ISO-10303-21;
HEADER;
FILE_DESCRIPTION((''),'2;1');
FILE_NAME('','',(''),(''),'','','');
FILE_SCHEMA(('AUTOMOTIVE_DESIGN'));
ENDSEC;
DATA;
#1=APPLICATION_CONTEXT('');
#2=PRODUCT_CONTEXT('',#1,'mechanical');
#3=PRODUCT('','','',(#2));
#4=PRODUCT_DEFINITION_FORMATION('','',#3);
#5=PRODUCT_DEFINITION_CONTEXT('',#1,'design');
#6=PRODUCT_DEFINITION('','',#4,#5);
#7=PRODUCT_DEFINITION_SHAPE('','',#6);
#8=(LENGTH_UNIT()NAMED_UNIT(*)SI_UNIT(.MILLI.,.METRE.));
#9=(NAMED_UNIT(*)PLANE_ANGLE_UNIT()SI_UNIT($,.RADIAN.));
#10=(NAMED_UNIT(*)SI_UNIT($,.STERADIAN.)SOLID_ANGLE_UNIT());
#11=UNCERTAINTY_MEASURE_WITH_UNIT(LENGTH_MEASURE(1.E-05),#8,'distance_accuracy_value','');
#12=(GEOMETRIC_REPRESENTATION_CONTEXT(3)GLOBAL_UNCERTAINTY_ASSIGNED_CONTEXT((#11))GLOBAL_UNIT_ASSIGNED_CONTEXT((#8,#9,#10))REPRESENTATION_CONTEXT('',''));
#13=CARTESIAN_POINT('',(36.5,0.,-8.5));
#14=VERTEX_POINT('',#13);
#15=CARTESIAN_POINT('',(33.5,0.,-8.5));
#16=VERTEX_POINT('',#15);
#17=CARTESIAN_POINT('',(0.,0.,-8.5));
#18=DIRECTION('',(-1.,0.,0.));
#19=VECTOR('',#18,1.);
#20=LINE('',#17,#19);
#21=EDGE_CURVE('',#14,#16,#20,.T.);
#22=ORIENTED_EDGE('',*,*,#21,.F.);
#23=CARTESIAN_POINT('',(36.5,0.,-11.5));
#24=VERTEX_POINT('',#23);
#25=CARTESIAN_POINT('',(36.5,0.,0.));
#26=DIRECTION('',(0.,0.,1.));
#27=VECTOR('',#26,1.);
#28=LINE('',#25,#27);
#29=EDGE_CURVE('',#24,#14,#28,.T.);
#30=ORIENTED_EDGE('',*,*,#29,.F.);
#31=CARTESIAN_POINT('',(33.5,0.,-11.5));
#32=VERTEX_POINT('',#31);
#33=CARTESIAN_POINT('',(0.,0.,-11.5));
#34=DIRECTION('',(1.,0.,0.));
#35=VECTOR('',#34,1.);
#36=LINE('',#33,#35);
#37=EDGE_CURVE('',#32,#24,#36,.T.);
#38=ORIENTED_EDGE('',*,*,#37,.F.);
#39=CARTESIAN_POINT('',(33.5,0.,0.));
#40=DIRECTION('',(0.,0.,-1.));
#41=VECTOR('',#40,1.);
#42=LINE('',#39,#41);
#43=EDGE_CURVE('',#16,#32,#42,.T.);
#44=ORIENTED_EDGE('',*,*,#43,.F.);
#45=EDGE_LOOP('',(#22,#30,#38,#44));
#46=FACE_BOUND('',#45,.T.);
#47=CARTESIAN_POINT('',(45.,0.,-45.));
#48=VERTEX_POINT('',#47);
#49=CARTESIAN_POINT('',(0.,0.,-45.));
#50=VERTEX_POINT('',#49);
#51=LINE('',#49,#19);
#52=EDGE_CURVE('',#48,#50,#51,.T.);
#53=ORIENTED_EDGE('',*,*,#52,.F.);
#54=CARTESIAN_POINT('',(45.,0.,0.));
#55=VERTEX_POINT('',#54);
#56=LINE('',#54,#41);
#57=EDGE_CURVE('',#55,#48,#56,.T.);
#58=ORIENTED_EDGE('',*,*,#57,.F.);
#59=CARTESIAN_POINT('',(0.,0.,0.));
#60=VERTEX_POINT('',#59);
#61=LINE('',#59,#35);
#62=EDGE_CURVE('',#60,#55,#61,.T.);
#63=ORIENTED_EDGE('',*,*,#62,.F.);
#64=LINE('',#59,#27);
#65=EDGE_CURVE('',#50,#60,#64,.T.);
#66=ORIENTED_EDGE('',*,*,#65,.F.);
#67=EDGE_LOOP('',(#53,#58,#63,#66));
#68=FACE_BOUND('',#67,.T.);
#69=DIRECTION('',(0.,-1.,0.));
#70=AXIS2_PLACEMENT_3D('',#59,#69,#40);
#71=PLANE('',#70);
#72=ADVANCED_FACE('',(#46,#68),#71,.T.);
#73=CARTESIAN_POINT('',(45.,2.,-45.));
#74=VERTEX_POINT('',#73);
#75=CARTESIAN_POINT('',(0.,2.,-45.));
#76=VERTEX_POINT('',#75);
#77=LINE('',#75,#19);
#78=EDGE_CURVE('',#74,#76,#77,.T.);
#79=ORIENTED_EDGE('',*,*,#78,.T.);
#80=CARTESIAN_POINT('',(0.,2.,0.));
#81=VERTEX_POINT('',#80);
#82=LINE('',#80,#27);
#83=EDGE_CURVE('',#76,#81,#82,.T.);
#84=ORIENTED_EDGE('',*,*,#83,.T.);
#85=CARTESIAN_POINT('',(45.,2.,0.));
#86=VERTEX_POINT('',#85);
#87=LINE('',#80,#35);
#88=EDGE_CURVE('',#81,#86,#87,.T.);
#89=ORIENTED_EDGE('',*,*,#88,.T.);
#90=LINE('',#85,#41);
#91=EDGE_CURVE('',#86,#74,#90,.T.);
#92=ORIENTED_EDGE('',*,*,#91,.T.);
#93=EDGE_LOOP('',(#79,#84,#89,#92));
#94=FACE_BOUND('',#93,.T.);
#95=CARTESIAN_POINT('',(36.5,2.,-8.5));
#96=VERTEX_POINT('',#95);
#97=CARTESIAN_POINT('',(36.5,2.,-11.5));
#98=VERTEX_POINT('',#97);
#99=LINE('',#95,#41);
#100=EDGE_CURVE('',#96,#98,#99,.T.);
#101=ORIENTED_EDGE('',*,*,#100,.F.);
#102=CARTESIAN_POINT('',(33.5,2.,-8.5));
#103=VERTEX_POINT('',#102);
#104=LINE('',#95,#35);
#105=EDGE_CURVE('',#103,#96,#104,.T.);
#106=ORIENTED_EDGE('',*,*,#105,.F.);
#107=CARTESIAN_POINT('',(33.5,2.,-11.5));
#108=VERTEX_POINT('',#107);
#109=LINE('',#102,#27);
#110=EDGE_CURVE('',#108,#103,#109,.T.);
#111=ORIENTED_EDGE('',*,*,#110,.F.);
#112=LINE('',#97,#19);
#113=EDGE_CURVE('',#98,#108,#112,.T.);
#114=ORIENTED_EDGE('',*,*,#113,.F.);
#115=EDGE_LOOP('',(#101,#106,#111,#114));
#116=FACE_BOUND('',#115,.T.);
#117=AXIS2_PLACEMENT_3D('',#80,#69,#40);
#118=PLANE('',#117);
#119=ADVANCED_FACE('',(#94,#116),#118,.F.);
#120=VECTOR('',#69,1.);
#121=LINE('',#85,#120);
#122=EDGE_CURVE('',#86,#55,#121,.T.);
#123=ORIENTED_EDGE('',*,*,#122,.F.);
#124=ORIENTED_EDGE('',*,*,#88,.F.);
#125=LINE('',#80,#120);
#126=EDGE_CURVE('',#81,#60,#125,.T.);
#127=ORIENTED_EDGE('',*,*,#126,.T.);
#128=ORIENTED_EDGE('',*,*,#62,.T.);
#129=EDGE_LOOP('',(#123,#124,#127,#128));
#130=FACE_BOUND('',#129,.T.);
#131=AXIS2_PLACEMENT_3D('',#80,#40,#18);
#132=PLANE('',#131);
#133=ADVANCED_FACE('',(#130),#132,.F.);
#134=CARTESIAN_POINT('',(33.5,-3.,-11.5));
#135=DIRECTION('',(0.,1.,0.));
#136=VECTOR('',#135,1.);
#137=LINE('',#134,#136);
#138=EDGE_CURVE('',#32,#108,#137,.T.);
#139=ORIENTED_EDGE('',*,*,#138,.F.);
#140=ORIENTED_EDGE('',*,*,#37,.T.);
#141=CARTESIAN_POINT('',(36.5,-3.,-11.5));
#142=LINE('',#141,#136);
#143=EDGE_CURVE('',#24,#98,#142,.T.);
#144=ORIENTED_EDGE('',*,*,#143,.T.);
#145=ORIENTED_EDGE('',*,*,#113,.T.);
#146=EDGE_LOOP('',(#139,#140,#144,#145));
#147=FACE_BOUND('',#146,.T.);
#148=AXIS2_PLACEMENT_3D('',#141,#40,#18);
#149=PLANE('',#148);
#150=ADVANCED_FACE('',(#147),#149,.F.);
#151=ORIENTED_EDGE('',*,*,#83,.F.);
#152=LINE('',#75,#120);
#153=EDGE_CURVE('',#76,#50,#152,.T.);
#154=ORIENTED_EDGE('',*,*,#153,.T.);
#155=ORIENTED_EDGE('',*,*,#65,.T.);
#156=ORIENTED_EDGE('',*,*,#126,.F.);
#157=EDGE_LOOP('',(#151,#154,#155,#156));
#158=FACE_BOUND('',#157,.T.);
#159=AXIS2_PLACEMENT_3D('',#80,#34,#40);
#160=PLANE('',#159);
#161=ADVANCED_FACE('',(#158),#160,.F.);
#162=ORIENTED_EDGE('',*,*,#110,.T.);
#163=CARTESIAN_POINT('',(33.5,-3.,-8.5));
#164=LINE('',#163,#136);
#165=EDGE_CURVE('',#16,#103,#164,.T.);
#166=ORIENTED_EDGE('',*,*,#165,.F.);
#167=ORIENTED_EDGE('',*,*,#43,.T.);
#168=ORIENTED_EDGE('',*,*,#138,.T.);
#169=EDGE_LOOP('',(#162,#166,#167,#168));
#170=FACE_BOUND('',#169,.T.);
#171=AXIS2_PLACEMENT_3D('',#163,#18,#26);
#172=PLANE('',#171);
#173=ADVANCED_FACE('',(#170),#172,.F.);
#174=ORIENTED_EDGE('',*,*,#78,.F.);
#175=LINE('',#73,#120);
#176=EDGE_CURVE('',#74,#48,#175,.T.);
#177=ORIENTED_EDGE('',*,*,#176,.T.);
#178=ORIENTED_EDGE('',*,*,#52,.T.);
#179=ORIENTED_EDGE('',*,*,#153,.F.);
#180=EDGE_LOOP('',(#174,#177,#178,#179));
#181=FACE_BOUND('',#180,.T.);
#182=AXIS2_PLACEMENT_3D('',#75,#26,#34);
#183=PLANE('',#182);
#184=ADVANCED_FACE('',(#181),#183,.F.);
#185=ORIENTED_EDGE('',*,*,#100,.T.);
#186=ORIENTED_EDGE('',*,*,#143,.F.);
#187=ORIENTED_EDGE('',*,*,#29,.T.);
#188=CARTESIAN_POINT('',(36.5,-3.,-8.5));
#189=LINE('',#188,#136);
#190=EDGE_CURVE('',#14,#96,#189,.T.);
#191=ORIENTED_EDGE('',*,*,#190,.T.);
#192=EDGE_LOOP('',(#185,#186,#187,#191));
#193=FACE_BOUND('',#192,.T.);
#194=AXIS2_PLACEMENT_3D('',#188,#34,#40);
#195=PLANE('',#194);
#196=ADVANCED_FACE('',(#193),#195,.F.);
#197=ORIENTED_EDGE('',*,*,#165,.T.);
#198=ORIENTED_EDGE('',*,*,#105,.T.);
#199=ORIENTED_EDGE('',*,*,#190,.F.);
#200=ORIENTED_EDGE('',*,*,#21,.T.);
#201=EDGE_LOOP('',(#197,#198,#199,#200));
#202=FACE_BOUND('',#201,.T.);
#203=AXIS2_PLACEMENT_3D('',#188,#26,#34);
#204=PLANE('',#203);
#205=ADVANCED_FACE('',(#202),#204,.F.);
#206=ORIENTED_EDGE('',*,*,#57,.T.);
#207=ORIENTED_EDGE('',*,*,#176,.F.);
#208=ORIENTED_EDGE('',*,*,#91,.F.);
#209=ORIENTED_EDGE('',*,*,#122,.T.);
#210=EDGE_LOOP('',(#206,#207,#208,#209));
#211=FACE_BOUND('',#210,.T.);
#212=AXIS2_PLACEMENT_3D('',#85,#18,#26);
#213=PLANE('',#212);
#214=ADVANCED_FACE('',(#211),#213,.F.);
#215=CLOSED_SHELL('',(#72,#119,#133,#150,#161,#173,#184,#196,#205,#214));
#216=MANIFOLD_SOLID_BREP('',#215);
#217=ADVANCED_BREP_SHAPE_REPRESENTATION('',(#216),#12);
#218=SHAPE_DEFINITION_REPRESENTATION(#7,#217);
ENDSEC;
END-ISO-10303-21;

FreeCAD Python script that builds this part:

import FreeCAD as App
import Part
import Sketcher

V = App.Vector


def add_polygon(sketch, points):
    """Adds a closed chain of lines whose ends are joined by coincident constraints."""
    first, n = sketch.GeometryCount, len(points)
    for a, b in zip(points, points[1:] + points[:1]):
        sketch.addGeometry(Part.LineSegment(App.Vector(*a, 0), App.Vector(*b, 0)), False)
    for i in range(n):
        sketch.addConstraint(Sketcher.Constraint("Coincident", first + i, 2, first + (i + 1) % n, 1))

doc = App.newDocument("Part")
params = doc.addObject("Spreadsheet::Sheet", "Params")
for row, (alias, value) in enumerate([
    ("sketch1_width", "45 mm"),
    ("pad1_length", "2 mm"),
    ("sketch2_width", "3 mm"),
    ("pocket1_length", "5 mm"),
], start=1):
    params.set(f"A{row}", alias)
    params.set(f"B{row}", "=" + value)
    params.setAlias(f"B{row}", alias)

body = doc.addObject("PartDesign::Body", "Body")

sketch1 = body.newObject("Sketcher::SketchObject", "Sketch")
sketch1.AttachmentSupport = (doc.getObject("XZ_Plane"), [""])
sketch1.MapMode = "FlatFace"
add_polygon(sketch1, [(0, -45), (0, 0), (45, 0), (45, -45)])
sketch1.addConstraint([
    Sketcher.Constraint("Vertical", 0),
    Sketcher.Constraint("Horizontal", 1),
    Sketcher.Constraint("Vertical", 2),
    Sketcher.Constraint("Horizontal", 3),
    Sketcher.Constraint("Coincident", 0, 2, -1, 1),
    Sketcher.Constraint("Equal", 3, 0),
    Sketcher.Constraint("DistanceX", 1, 1, 1, 2, 45.0),
])
sketch1.setExpression("Constraints[10]", "Params.sketch1_width")
pad1 = body.newObject("PartDesign::Pad", "Pad")
pad1.Profile = sketch1
pad1.setExpression("Length", "Params.pad1_length")
pad1.Reversed = True

sketch2 = body.newObject("Sketcher::SketchObject", "Sketch001")
sketch2.AttachmentSupport = (doc.getObject("XZ_Plane"), [""])
sketch2.MapMode = "FlatFace"
sketch2.AttachmentOffset = App.Placement(V(0, 0, -2), App.Rotation())
add_polygon(sketch2, [(33.5, -11.5), (33.5, -8.5), (36.5, -8.5), (36.5, -11.5)])
sketch2.addConstraint([
    Sketcher.Constraint("Vertical", 0),
    Sketcher.Constraint("Horizontal", 1),
    Sketcher.Constraint("Vertical", 2),
    Sketcher.Constraint("Horizontal", 3),
    Sketcher.Constraint("Equal", 3, 0),
    Sketcher.Constraint("DistanceX", 1, 1, 1, 2, 3.0),
    Sketcher.Constraint("DistanceX", -1, 1, 0, 2, 33.5),
    Sketcher.Constraint("DistanceY", 0, 2, -1, 1, 8.5),
])
sketch2.setExpression("Constraints[9]", "Params.sketch2_width")
pocket1 = body.newObject("PartDesign::Pocket", "Pocket")
pocket1.Profile = sketch2
pocket1.setExpression("Length", "Params.pocket1_length")
pocket1.Reversed = True

doc.recompute()
